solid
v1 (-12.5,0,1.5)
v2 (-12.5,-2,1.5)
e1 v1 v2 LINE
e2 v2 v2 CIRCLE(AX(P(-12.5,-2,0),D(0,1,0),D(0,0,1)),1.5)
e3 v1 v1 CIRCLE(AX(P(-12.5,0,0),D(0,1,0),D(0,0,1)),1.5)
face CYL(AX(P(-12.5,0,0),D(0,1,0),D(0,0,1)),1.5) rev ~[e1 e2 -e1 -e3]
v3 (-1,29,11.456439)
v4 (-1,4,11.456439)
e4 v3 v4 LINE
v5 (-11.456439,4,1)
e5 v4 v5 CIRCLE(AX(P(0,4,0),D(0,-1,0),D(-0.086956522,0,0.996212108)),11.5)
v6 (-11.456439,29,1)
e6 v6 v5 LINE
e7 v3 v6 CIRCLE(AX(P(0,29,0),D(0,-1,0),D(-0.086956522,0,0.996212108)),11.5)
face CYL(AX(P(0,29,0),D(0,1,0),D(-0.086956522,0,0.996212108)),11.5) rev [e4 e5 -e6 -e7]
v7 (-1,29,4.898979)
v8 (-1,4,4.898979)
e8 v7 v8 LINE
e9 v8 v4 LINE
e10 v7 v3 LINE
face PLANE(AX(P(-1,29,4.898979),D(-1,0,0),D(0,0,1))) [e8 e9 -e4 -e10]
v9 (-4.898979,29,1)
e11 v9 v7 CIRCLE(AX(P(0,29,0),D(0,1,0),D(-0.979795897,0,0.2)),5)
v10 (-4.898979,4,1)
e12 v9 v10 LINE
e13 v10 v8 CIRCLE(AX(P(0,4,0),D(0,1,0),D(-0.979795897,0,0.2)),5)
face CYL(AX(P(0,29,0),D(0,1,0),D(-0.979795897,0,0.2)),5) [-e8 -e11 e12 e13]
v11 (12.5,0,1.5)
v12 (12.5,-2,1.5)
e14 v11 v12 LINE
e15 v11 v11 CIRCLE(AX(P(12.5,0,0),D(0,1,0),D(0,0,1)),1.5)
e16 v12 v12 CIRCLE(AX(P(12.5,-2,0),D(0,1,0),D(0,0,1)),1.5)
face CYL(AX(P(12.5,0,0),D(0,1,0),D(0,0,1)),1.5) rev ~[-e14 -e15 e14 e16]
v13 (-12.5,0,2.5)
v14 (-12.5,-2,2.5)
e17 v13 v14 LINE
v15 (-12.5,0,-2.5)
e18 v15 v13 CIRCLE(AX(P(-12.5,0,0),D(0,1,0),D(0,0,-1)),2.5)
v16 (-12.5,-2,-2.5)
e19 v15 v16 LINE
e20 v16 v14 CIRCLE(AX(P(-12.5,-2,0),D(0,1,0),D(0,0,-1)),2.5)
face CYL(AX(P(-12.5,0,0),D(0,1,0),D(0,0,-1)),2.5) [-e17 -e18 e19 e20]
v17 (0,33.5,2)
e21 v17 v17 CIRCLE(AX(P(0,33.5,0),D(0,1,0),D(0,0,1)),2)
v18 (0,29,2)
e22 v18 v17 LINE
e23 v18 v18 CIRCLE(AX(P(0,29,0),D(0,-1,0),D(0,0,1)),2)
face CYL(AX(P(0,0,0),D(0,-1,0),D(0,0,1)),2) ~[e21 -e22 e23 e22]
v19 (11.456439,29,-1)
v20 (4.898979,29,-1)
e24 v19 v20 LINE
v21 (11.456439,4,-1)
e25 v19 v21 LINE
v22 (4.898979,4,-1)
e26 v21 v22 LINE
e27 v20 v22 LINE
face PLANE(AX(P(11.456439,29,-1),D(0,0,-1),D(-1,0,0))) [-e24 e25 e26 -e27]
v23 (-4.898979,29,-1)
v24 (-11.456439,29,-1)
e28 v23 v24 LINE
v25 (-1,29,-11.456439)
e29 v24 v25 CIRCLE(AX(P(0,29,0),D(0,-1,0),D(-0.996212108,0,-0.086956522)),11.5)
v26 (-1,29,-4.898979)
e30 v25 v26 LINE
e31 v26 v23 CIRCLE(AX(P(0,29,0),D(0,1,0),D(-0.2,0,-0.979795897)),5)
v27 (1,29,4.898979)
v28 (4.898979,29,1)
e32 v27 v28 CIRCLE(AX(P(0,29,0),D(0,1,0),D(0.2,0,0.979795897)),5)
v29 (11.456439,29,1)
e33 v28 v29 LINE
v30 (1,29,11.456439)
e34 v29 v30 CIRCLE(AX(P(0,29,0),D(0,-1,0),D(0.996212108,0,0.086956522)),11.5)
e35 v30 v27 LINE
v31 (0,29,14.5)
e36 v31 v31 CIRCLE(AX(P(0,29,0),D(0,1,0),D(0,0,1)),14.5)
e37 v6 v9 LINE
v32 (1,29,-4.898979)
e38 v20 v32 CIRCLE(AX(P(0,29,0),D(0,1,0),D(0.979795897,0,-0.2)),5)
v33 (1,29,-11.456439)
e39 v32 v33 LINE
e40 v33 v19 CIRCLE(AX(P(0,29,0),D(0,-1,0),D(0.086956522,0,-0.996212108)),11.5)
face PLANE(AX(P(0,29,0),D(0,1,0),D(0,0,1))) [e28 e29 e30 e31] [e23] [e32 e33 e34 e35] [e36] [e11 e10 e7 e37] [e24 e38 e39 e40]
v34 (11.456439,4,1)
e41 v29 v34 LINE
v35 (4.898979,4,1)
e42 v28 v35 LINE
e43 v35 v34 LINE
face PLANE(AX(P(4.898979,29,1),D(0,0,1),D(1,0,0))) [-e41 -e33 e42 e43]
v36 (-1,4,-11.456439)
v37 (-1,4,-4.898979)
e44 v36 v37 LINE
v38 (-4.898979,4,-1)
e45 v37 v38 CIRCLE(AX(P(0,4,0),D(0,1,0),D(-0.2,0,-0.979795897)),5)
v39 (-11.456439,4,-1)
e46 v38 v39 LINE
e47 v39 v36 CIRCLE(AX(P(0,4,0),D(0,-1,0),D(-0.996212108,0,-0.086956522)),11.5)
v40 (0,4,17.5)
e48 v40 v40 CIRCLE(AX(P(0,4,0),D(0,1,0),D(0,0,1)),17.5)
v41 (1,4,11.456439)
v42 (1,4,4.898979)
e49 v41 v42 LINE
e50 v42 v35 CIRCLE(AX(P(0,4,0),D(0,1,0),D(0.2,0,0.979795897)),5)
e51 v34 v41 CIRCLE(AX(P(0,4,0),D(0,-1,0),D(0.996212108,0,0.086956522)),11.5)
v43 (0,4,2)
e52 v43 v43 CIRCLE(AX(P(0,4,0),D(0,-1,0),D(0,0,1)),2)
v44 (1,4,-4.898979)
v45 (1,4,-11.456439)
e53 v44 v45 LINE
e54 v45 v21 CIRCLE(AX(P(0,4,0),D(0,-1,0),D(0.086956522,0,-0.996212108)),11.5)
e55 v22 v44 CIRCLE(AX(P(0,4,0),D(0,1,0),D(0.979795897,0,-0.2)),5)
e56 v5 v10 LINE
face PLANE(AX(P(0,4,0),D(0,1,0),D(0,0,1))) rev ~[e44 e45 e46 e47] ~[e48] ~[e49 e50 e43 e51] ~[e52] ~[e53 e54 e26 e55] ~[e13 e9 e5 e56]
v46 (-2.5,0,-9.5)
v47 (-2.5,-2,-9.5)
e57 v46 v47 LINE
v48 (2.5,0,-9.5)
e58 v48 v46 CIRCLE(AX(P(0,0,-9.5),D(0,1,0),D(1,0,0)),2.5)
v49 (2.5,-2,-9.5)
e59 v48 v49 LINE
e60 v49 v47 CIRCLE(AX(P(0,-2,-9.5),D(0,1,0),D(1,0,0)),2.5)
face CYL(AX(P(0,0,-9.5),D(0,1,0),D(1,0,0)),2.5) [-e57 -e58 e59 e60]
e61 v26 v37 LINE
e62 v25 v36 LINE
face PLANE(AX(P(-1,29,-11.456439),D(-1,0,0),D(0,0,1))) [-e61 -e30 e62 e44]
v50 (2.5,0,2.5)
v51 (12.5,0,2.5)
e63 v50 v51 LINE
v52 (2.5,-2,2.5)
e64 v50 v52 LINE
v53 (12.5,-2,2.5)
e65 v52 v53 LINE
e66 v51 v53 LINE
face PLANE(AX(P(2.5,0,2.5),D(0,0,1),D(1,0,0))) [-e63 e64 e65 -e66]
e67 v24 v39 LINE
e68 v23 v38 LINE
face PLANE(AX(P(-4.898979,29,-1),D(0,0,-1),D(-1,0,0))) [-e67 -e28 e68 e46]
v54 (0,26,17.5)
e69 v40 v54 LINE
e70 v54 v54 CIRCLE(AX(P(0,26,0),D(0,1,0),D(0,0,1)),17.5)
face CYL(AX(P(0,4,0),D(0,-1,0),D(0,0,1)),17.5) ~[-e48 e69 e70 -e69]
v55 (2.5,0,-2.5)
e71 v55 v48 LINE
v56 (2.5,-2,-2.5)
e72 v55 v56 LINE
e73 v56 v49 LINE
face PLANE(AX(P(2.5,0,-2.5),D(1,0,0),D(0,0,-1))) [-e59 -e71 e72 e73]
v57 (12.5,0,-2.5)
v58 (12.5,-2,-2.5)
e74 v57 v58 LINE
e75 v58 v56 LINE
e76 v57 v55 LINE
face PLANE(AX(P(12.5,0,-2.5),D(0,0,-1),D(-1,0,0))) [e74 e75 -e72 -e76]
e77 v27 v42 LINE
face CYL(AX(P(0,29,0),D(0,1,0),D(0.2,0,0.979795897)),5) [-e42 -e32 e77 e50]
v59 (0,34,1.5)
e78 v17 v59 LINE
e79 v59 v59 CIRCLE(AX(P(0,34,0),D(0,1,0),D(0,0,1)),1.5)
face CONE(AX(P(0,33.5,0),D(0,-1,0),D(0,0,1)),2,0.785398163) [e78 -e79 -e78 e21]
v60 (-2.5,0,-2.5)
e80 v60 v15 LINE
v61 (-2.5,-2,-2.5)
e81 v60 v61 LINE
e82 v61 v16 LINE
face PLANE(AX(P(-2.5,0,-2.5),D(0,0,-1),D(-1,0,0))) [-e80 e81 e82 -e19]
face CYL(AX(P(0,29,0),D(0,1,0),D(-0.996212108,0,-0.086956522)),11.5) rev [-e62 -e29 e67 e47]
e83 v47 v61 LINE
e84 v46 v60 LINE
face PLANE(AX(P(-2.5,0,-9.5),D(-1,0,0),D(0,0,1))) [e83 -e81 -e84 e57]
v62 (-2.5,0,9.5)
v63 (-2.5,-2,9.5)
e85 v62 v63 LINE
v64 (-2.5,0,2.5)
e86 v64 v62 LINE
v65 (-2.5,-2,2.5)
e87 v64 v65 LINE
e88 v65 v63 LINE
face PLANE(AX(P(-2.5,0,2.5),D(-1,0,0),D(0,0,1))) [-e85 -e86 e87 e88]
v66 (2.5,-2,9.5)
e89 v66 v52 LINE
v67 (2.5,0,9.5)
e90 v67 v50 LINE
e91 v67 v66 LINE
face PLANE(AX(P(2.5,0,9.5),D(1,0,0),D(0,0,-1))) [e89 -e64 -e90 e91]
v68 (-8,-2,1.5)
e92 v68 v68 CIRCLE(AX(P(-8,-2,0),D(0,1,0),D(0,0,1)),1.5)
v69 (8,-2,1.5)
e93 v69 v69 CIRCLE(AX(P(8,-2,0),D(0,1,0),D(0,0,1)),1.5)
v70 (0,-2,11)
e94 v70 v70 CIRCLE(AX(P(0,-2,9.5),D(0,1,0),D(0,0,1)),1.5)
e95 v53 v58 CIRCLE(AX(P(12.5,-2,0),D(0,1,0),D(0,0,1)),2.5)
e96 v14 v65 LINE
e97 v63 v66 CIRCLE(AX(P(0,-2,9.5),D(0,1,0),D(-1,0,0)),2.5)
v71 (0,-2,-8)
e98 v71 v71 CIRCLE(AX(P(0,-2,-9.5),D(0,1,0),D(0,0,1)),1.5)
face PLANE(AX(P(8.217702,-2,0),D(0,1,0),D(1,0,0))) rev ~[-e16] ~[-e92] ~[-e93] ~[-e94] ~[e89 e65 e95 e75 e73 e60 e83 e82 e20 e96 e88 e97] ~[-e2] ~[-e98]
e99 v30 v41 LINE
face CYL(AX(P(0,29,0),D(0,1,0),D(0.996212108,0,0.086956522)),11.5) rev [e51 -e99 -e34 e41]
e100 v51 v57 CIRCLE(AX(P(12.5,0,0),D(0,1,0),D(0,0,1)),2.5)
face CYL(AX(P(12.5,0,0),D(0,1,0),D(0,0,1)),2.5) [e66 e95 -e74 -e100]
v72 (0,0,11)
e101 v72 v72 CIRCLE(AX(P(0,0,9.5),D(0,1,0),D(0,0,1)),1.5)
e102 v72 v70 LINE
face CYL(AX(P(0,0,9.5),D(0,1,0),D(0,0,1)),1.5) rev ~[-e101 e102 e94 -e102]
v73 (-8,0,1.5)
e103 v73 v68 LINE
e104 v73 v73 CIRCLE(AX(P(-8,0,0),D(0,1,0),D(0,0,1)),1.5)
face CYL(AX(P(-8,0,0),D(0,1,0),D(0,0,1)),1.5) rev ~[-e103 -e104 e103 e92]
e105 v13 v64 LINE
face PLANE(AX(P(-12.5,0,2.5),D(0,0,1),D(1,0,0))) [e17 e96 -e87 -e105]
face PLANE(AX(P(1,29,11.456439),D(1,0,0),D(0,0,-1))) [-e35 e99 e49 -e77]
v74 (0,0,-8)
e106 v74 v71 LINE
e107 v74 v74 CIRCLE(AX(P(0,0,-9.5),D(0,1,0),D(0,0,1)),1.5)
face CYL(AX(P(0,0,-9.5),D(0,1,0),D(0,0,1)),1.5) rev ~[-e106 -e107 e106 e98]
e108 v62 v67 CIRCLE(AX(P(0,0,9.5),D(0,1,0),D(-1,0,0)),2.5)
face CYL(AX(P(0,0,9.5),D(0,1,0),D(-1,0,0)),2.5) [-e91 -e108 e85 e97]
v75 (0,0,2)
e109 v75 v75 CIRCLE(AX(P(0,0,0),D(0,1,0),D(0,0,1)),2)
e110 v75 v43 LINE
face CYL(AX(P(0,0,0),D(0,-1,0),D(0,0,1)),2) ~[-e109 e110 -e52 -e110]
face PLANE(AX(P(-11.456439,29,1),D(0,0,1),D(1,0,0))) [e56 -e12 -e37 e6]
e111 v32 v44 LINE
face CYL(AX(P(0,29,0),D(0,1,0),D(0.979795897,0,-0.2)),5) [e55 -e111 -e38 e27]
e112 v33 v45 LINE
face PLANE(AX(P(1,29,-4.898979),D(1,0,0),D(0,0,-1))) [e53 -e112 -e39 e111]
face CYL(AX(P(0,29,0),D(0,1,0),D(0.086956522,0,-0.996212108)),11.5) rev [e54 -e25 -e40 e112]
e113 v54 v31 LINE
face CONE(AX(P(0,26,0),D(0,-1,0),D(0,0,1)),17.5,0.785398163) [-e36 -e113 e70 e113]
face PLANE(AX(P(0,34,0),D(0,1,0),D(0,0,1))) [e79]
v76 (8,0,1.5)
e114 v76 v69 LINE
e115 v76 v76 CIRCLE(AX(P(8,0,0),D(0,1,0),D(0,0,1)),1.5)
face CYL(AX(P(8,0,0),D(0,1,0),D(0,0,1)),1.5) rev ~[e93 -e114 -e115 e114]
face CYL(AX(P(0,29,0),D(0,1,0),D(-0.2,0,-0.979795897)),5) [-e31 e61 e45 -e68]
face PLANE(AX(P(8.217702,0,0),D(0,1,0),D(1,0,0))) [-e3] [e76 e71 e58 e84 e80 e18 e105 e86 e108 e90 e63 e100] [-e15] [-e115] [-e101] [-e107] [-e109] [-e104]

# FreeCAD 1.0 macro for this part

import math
import FreeCAD as App
import Part
import Sketcher
from FreeCAD import Vector


def edges_at(feature, points):
    """Names of the edges that pass closest to the given points."""
    edges = feature.Shape.Edges
    near = lambda p: min(range(len(edges)), key=lambda i: edges[i].distToShape(Part.Vertex(*p))[0])
    return sorted({f"Edge{near(p) + 1}" for p in points})

doc = App.newDocument("Part")
body = doc.addObject("PartDesign::Body", "Body")

# Sketch on XZ plane
sketch1 = body.newObject("Sketcher::SketchObject", "Sketch")
sketch1.AttachmentSupport = (doc.getObject("XZ_Plane"), [""])
sketch1.MapMode = "FlatFace"
sketch1.addGeometry([
    Part.LineSegment(Vector(-12.5, 2.5, 0), Vector(-2.5, 2.5, 0)),  # 0
    Part.LineSegment(Vector(-2.5, 2.5, 0), Vector(-2.5, 9.5, 0)),  # 1
    Part.ArcOfCircle(Part.Circle(Vector(0, 9.5, 0), Vector(0, 0, 1), 2.5), math.radians(0), math.radians(180)),  # 2
    Part.LineSegment(Vector(2.5, 9.5, 0), Vector(2.5, 2.5, 0)),  # 3
    Part.LineSegment(Vector(2.5, 2.5, 0), Vector(12.5, 2.5, 0)),  # 4
    Part.ArcOfCircle(Part.Circle(Vector(12.5, 0, 0), Vector(0, 0, 1), 2.5), math.radians(-90), math.radians(90)),  # 5
    Part.LineSegment(Vector(12.5, -2.5, 0), Vector(2.5, -2.5, 0)),  # 6
    Part.LineSegment(Vector(2.5, -2.5, 0), Vector(2.5, -9.5, 0)),  # 7
    Part.ArcOfCircle(Part.Circle(Vector(0, -9.5, 0), Vector(0, 0, 1), 2.5), math.radians(180), math.radians(360)),  # 8
    Part.LineSegment(Vector(-2.5, -9.5, 0), Vector(-2.5, -2.5, 0)),  # 9
    Part.LineSegment(Vector(-2.5, -2.5, 0), Vector(-12.5, -2.5, 0)),  # 10
    Part.ArcOfCircle(Part.Circle(Vector(-12.5, 0, 0), Vector(0, 0, 1), 2.5), math.radians(90), math.radians(270)),  # 11
    Part.Circle(Vector(-12.5, 0, 0), Vector(0, 0, 1), 1.5),  # 12
    Part.Circle(Vector(-8, 0, 0), Vector(0, 0, 1), 1.5),  # 13
    Part.Circle(Vector(0, 9.5, 0), Vector(0, 0, 1), 1.5),  # 14
    Part.Circle(Vector(0, -9.5, 0), Vector(0, 0, 1), 1.5),  # 15
    Part.Circle(Vector(12.5, 0, 0), Vector(0, 0, 1), 1.5),  # 16
    Part.Circle(Vector(8, 0, 0), Vector(0, 0, 1), 1.5),  # 17
], False)
sketch1.addConstraint([
    Sketcher.Constraint("Coincident", 0, 2, 1, 1),
    Sketcher.Constraint("Tangent", 1, 2, 2, 2),
    Sketcher.Constraint("Tangent", 2, 1, 3, 1),
    Sketcher.Constraint("Coincident", 3, 2, 4, 1),
    Sketcher.Constraint("Tangent", 4, 2, 5, 2),
    Sketcher.Constraint("Tangent", 5, 1, 6, 1),
    Sketcher.Constraint("Coincident", 6, 2, 7, 1),
    Sketcher.Constraint("Tangent", 7, 2, 8, 2),
    Sketcher.Constraint("Tangent", 8, 1, 9, 1),
    Sketcher.Constraint("Coincident", 9, 2, 10, 1),
    Sketcher.Constraint("Tangent", 10, 2, 11, 2),
    Sketcher.Constraint("Tangent", 11, 1, 0, 1),
    Sketcher.Constraint("Horizontal", 0),
    Sketcher.Constraint("Vertical", 1),
    Sketcher.Constraint("Vertical", 3),
    Sketcher.Constraint("Horizontal", 4),
    Sketcher.Constraint("Horizontal", 6),
    Sketcher.Constraint("Vertical", 7),
    Sketcher.Constraint("Vertical", 9),
    Sketcher.Constraint("Horizontal", 10),
    Sketcher.Constraint("Coincident", 12, 3, 11, 3),
    Sketcher.Constraint("Coincident", 14, 3, 2, 3),
    Sketcher.Constraint("Coincident", 15, 3, 8, 3),
    Sketcher.Constraint("Coincident", 16, 3, 5, 3),
    Sketcher.Constraint("Equal", 2, 5),
    Sketcher.Constraint("Equal", 5, 8),
    Sketcher.Constraint("Equal", 8, 11),
    Sketcher.Constraint("Equal", 12, 13),
    Sketcher.Constraint("Equal", 13, 14),
    Sketcher.Constraint("Equal", 14, 15),
    Sketcher.Constraint("Equal", 15, 16),
    Sketcher.Constraint("Equal", 16, 17),
    Sketcher.Constraint("Symmetric", 2, 3, 8, 3, -1, 1),
    Sketcher.Constraint("Symmetric", 5, 3, 11, 3, -1, 1),
    Sketcher.Constraint("Symmetric", 13, 3, 17, 3, -1, 1),
    Sketcher.Constraint("Symmetric", 0, 2, 3, 2, -2),
    Sketcher.Constraint("PointOnObject", 13, 3, -1),
    Sketcher.Constraint("Diameter", 12, 3.0),
    Sketcher.Constraint("Radius", 2, 2.5),
    Sketcher.Constraint("DistanceX", 0, 1, 0, 2, 10.0),
    Sketcher.Constraint("DistanceY", 1, 1, 1, 2, 7.0),
    Sketcher.Constraint("DistanceX", 13, 3, -1, 1, 8.0),
])
pad1 = body.newObject("PartDesign::Pad", "Pad")
pad1.Profile = sketch1
pad1.Length = 2

# Sketch on XZ plane
sketch2 = body.newObject("Sketcher::SketchObject", "Sketch001")
sketch2.AttachmentSupport = (doc.getObject("XZ_Plane"), [""])
sketch2.MapMode = "FlatFace"
sketch2.addGeometry(Part.Circle(Vector(0, 0, 0), Vector(0, 0, 1), 2), False)
sketch2.addConstraint([
    Sketcher.Constraint("Coincident", 0, 3, -1, 1),
    Sketcher.Constraint("Diameter", 0, 4.0),
])
pad2 = body.newObject("PartDesign::Pad", "Pad001")
pad2.Profile = sketch2
pad2.Length = 34
pad2.Reversed = True

# Sketch on XZ plane
sketch3 = body.newObject("Sketcher::SketchObject", "Sketch002")
sketch3.AttachmentSupport = (doc.getObject("XZ_Plane"), [""])
sketch3.MapMode = "FlatFace"
sketch3.AttachmentOffset = App.Placement(Vector(0, 0, -4), App.Rotation())
sketch3.addGeometry(Part.Circle(Vector(0, 0, 0), Vector(0, 0, 1), 18), False)
sketch3.addConstraint([
    Sketcher.Constraint("Coincident", 0, 3, -1, 1),
    Sketcher.Constraint("Diameter", 0, 35.0),
])
pad3 = body.newObject("PartDesign::Pad", "Pad002")
pad3.Profile = sketch3
pad3.Length = 25
pad3.Reversed = True
doc.recompute()

chamfer = body.newObject("PartDesign::Chamfer", "Chamfer")
chamfer.Base = (pad3, edges_at(pad3, [(0, 29, -17.5)]))
chamfer.Size = 3

# Sketch on XZ plane
sketch4 = body.newObject("Sketcher::SketchObject", "Sketch003")
sketch4.AttachmentSupport = (doc.getObject("XZ_Plane"), [""])
sketch4.MapMode = "FlatFace"
sketch4.AttachmentOffset = App.Placement(Vector(0, 0, -29), App.Rotation())
sketch4.addGeometry([
    Part.LineSegment(Vector(-1, -5, 0), Vector(-1, -11, 0)),  # 0
    Part.ArcOfCircle(Part.Circle(Vector(0, 0, 0), Vector(0, 0, 1), 11), math.radians(-175), math.radians(-95)),  # 1
    Part.LineSegment(Vector(-11, -1, 0), Vector(-5, -1, 0)),  # 2
    Part.ArcOfCircle(Part.Circle(Vector(0, 0, 0), Vector(0, 0, 1), 5), math.radians(-168), math.radians(-102)),  # 3
    Part.LineSegment(Vector(-5, 1, 0), Vector(-11, 1, 0)),  # 4
    Part.ArcOfCircle(Part.Circle(Vector(0, 0, 0), Vector(0, 0, 1), 11), math.radians(95), math.radians(175)),  # 5
    Part.LineSegment(Vector(-1, 11, 0), Vector(-1, 5, 0)),  # 6
    Part.ArcOfCircle(Part.Circle(Vector(0, 0, 0), Vector(0, 0, 1), 5), math.radians(102), math.radians(168)),  # 7
    Part.LineSegment(Vector(5, -1, 0), Vector(11, -1, 0)),  # 8
    Part.ArcOfCircle(Part.Circle(Vector(0, 0, 0), Vector(0, 0, 1), 11), math.radians(-85), math.radians(-5)),  # 9
    Part.LineSegment(Vector(1, -11, 0), Vector(1, -5, 0)),  # 10
    Part.ArcOfCircle(Part.Circle(Vector(0, 0, 0), Vector(0, 0, 1), 5), math.radians(-78), math.radians(-12)),  # 11
    Part.LineSegment(Vector(1, 5, 0), Vector(1, 11, 0)),  # 12
    Part.ArcOfCircle(Part.Circle(Vector(0, 0, 0), Vector(0, 0, 1), 11), math.radians(5), math.radians(85)),  # 13
    Part.LineSegment(Vector(11, 1, 0), Vector(5, 1, 0)),  # 14
    Part.ArcOfCircle(Part.Circle(Vector(0, 0, 0), Vector(0, 0, 1), 5), math.radians(12), math.radians(78)),  # 15
], False)
sketch4.addConstraint([
    Sketcher.Constraint("Coincident", 0, 2, 1, 2),
    Sketcher.Constraint("Coincident", 1, 1, 2, 1),
    Sketcher.Constraint("Coincident", 2, 2, 3, 1),
    Sketcher.Constraint("Coincident", 3, 2, 0, 1),
    Sketcher.Constraint("Coincident", 4, 2, 5, 2),
    Sketcher.Constraint("Coincident", 5, 1, 6, 1),
    Sketcher.Constraint("Coincident", 6, 2, 7, 1),
    Sketcher.Constraint("Coincident", 7, 2, 4, 1),
    Sketcher.Constraint("Coincident", 8, 2, 9, 2),
    Sketcher.Constraint("Coincident", 9, 1, 10, 1),
    Sketcher.Constraint("Coincident", 10, 2, 11, 1),
    Sketcher.Constraint("Coincident", 11, 2, 8, 1),
    Sketcher.Constraint("Coincident", 12, 2, 13, 2),
    Sketcher.Constraint("Coincident", 13, 1, 14, 1),
    Sketcher.Constraint("Coincident", 14, 2, 15, 1),
    Sketcher.Constraint("Coincident", 15, 2, 12, 1),
    Sketcher.Constraint("Vertical", 0),
    Sketcher.Constraint("Horizontal", 2),
    Sketcher.Constraint("Horizontal", 4),
    Sketcher.Constraint("Vertical", 6),
    Sketcher.Constraint("Horizontal", 8),
    Sketcher.Constraint("Vertical", 10),
    Sketcher.Constraint("Vertical", 12),
    Sketcher.Constraint("Horizontal", 14),
    Sketcher.Constraint("Coincident", 1, 3, -1, 1),
    Sketcher.Constraint("Coincident", 3, 3, -1, 1),
    Sketcher.Constraint("Coincident", 5, 3, -1, 1),
    Sketcher.Constraint("Coincident", 7, 3, -1, 1),
    Sketcher.Constraint("Coincident", 9, 3, -1, 1),
    Sketcher.Constraint("Coincident", 11, 3, -1, 1),
    Sketcher.Constraint("Coincident", 13, 3, -1, 1),
    Sketcher.Constraint("Coincident", 15, 3, -1, 1),
    Sketcher.Constraint("Equal", 1, 5),
    Sketcher.Constraint("Equal", 3, 7),
    Sketcher.Constraint("Equal", 5, 9),
    Sketcher.Constraint("Equal", 7, 11),
    Sketcher.Constraint("Equal", 9, 13),
    Sketcher.Constraint("Equal", 11, 15),
    Sketcher.Constraint("Horizontal", 2, 2, 8, 2),
    Sketcher.Constraint("Horizontal", 0, 2, 9, 1),
    Sketcher.Constraint("Horizontal", 5, 1, 12, 2),
    Sketcher.Constraint("Horizontal", 7, 2, 13, 1),
    Sketcher.Constraint("Vertical", 1, 1, 4, 2),
    Sketcher.Constraint("Vertical", 3, 2, 5, 1),
    Sketcher.Constraint("Equal", 14, 0),
    Sketcher.Constraint("Radius", 3, 5.0),
    Sketcher.Constraint("Radius", 1, 11.5),
    Sketcher.Constraint("DistanceX", 0, 2, -1, 1, 1.0),
])
pocket1 = body.newObject("PartDesign::Pocket", "Pocket")
pocket1.Profile = sketch4
pocket1.Length = 25
pocket1.Reversed = True
doc.recompute()

chamfer2 = body.newObject("PartDesign::Chamfer", "Chamfer001")
chamfer2.Base = (pocket1, edges_at(pocket1, [(0, 34, -2)]))
chamfer2.Size = 0.5

doc.recompute()
